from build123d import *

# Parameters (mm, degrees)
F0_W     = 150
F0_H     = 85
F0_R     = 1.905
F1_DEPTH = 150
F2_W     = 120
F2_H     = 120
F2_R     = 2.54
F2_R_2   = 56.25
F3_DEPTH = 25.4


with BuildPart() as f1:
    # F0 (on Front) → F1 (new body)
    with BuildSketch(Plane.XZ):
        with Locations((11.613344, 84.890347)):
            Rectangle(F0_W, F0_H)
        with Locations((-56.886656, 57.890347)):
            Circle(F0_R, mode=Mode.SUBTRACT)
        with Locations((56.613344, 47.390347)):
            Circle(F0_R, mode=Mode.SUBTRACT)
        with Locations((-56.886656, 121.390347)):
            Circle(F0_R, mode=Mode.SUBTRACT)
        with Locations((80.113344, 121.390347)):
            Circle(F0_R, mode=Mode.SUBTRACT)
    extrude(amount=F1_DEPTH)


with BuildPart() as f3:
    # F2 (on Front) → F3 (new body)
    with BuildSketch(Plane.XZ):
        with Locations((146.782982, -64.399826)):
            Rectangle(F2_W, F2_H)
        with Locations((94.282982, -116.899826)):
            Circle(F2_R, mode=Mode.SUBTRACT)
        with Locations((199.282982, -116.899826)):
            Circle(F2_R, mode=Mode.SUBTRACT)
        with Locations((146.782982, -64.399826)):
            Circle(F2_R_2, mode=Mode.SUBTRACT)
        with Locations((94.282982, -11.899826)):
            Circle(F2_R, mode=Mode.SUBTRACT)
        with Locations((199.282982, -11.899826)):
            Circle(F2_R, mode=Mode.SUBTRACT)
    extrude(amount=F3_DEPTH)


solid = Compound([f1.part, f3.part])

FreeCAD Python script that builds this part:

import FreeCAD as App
import Part
import Sketcher
from FreeCAD import Vector

doc = App.newDocument("Part")
body = doc.addObject("PartDesign::Body", "Body")

# Sketch on XZ plane
sketch1 = body.newObject("Sketcher::SketchObject", "Sketch")
sketch1.AttachmentSupport = (doc.getObject("XZ_Plane"), [""])
sketch1.MapMode = "FlatFace"
sketch1.addGeometry(Part.LineSegment(Vector(-63.4, 127.4, 0), Vector(-63.4, 42.4, 0)), False)
sketch1.addGeometry(Part.LineSegment(Vector(-63.4, 42.4, 0), Vector(86.6, 42.4, 0)), False)
sketch1.addGeometry(Part.LineSegment(Vector(86.6, 42.4, 0), Vector(86.6, 127.4, 0)), False)
sketch1.addGeometry(Part.LineSegment(Vector(86.6, 127.4, 0), Vector(-63.4, 127.4, 0)), False)
sketch1.addGeometry(Part.Circle(Vector(-56.9, 57.9, 0), Vector(0, 0, 1), 1.9), False)
sketch1.addGeometry(Part.Circle(Vector(56.6, 47.4, 0), Vector(0, 0, 1), 1.9), False)
sketch1.addGeometry(Part.Circle(Vector(-56.9, 121.4, 0), Vector(0, 0, 1), 1.9), False)
sketch1.addGeometry(Part.Circle(Vector(80.1, 121.4, 0), Vector(0, 0, 1), 1.9), False)
sketch1.addConstraint(Sketcher.Constraint("Coincident", 0, 2, 1, 1))
sketch1.addConstraint(Sketcher.Constraint("Coincident", 1, 2, 2, 1))
sketch1.addConstraint(Sketcher.Constraint("Coincident", 2, 2, 3, 1))
sketch1.addConstraint(Sketcher.Constraint("Coincident", 3, 2, 0, 1))
sketch1.addConstraint(Sketcher.Constraint("Vertical", 0))
sketch1.addConstraint(Sketcher.Constraint("Horizontal", 1))
sketch1.addConstraint(Sketcher.Constraint("Vertical", 2))
sketch1.addConstraint(Sketcher.Constraint("Horizontal", 3))
sketch1.addConstraint(Sketcher.Constraint("Equal", 4, 5))
sketch1.addConstraint(Sketcher.Constraint("Equal", 5, 6))
sketch1.addConstraint(Sketcher.Constraint("Equal", 6, 7))
sketch1.addConstraint(Sketcher.Constraint("Horizontal", 6, 3, 7, 3))
sketch1.addConstraint(Sketcher.Constraint("Vertical", 4, 3, 6, 3))
sketch1.addConstraint(Sketcher.Constraint("Diameter", 4, 3.81))
sketch1.addConstraint(Sketcher.Constraint("DistanceX", 1, 1, 1, 2, 150.0))
sketch1.addConstraint(Sketcher.Constraint("DistanceY", 0, 2, 0, 1, 85.0))
sketch1.addConstraint(Sketcher.Constraint("DistanceY", 5, 3, 6, 3, 74.0))
sketch1.addConstraint(Sketcher.Constraint("DistanceX", 6, 3, 7, 3, 137.0))
sketch1.addConstraint(Sketcher.Constraint("DistanceY", 0, 2, 6, 3, 79.0))
sketch1.addConstraint(Sketcher.Constraint("DistanceX", 0, 2, 5, 3, 120.0))
sketch1.addConstraint(Sketcher.Constraint("DistanceX", 4, 3, 5, 3, 113.5))
sketch1.addConstraint(Sketcher.Constraint("DistanceY", 5, 3, 4, 3, 10.5))
sketch1.addConstraint(Sketcher.Constraint("DistanceX", 4, 3, -1, 1, 56.886656))
sketch1.addConstraint(Sketcher.Constraint("DistanceY", -1, 1, 4, 3, 57.890347))
pad1 = body.newObject("PartDesign::Pad", "Pad")
pad1.Profile = sketch1
pad1.Length = 150
body2 = doc.addObject("PartDesign::Body", "Body001")

# Sketch on XZ plane
sketch2 = body2.newObject("Sketcher::SketchObject", "Sketch001")
sketch2.AttachmentSupport = (doc.getObject("XZ_Plane001"), [""])
sketch2.MapMode = "FlatFace"
sketch2.addGeometry(Part.LineSegment(Vector(86.8, -4.4, 0), Vector(86.8, -124.4, 0)), False)
sketch2.addGeometry(Part.LineSegment(Vector(86.8, -124.4, 0), Vector(206.8, -124.4, 0)), False)
sketch2.addGeometry(Part.LineSegment(Vector(206.8, -124.4, 0), Vector(206.8, -4.4, 0)), False)
sketch2.addGeometry(Part.LineSegment(Vector(206.8, -4.4, 0), Vector(86.8, -4.4, 0)), False)
sketch2.addGeometry(Part.Circle(Vector(94.3, -116.9, 0), Vector(0, 0, 1), 2.5), False)
sketch2.addGeometry(Part.Circle(Vector(199.3, -116.9, 0), Vector(0, 0, 1), 2.5), False)
sketch2.addGeometry(Part.Circle(Vector(94.3, -11.9, 0), Vector(0, 0, 1), 2.5), False)
sketch2.addGeometry(Part.Circle(Vector(146.8, -64.4, 0), Vector(0, 0, 1), 56.2), False)
sketch2.addGeometry(Part.Circle(Vector(199.3, -11.9, 0), Vector(0, 0, 1), 2.5), False)
sketch2.addConstraint(Sketcher.Constraint("Coincident", 0, 2, 1, 1))
sketch2.addConstraint(Sketcher.Constraint("Coincident", 1, 2, 2, 1))
sketch2.addConstraint(Sketcher.Constraint("Coincident", 2, 2, 3, 1))
sketch2.addConstraint(Sketcher.Constraint("Coincident", 3, 2, 0, 1))
sketch2.addConstraint(Sketcher.Constraint("Vertical", 0))
sketch2.addConstraint(Sketcher.Constraint("Horizontal", 1))
sketch2.addConstraint(Sketcher.Constraint("Vertical", 2))
sketch2.addConstraint(Sketcher.Constraint("Horizontal", 3))
sketch2.addConstraint(Sketcher.Constraint("Equal", 4, 5))
sketch2.addConstraint(Sketcher.Constraint("Equal", 5, 6))
sketch2.addConstraint(Sketcher.Constraint("Equal", 6, 8))
sketch2.addConstraint(Sketcher.Constraint("Horizontal", 4, 3, 5, 3))
sketch2.addConstraint(Sketcher.Constraint("Horizontal", 6, 3, 8, 3))
sketch2.addConstraint(Sketcher.Constraint("Vertical", 4, 3, 6, 3))
sketch2.addConstraint(Sketcher.Constraint("Vertical", 5, 3, 8, 3))
sketch2.addConstraint(Sketcher.Constraint("Equal", 3, 0))
sketch2.addConstraint(Sketcher.Constraint("Diameter", 7, 112.5))
sketch2.addConstraint(Sketcher.Constraint("Diameter", 4, 5.08))
sketch2.addConstraint(Sketcher.Constraint("DistanceX", 1, 1, 1, 2, 120.0))
sketch2.addConstraint(Sketcher.Constraint("DistanceX", 4, 3, 5, 3, 105.0))
sketch2.addConstraint(Sketcher.Constraint("DistanceY", 4, 3, 6, 3, 105.0))
sketch2.addConstraint(Sketcher.Constraint("DistanceX", 0, 2, 7, 3, 60.0))
sketch2.addConstraint(Sketcher.Constraint("DistanceY", 0, 2, 7, 3, 60.0))
sketch2.addConstraint(Sketcher.Constraint("DistanceX", 4, 3, 7, 3, 52.5))
sketch2.addConstraint(Sketcher.Constraint("DistanceY", 4, 3, 7, 3, 52.5))
sketch2.addConstraint(Sketcher.Constraint("DistanceX", -1, 1, 5, 3, 199.282982))
sketch2.addConstraint(Sketcher.Constraint("DistanceY", 4, 3, -1, 1, 116.899826))
pad2 = body2.newObject("PartDesign::Pad", "Pad001")
pad2.Profile = sketch2
pad2.Length = 25.4

doc.recompute()
